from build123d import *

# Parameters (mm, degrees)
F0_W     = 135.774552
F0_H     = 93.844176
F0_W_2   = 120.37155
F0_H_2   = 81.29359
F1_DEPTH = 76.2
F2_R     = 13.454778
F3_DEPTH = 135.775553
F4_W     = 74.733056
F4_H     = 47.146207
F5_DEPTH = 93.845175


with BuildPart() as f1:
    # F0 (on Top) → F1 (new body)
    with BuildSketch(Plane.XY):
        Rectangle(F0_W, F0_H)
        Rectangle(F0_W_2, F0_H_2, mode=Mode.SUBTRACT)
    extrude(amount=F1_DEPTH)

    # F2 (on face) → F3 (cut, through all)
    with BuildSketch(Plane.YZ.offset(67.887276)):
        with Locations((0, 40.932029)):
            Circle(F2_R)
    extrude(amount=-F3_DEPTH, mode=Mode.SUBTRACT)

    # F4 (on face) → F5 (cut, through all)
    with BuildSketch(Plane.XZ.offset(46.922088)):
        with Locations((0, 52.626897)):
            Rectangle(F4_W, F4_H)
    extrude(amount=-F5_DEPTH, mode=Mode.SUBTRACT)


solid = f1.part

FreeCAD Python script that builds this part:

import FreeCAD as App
import Part
import Sketcher
from FreeCAD import Vector
Q = App.Units.Quantity

doc = App.newDocument("Part")
body = doc.addObject("PartDesign::Body", "Body")

# Sketch on XY plane
sketch1 = body.newObject("Sketcher::SketchObject", "Sketch")
sketch1.AttachmentSupport = (doc.getObject("XY_Plane"), [""])
sketch1.MapMode = "FlatFace"
sketch1.addGeometry([
    Part.LineSegment(Vector(-68, 47, 0), Vector(-68, -47, 0)),  # 0
    Part.LineSegment(Vector(-68, -47, 0), Vector(68, -47, 0)),  # 1
    Part.LineSegment(Vector(68, -47, 0), Vector(68, 47, 0)),  # 2
    Part.LineSegment(Vector(68, 47, 0), Vector(-68, 47, 0)),  # 3
    Part.LineSegment(Vector(60, -41, 0), Vector(-60, -41, 0)),  # 4
    Part.LineSegment(Vector(-60, -41, 0), Vector(-60, 41, 0)),  # 5
    Part.LineSegment(Vector(-60, 41, 0), Vector(60, 41, 0)),  # 6
    Part.LineSegment(Vector(60, 41, 0), Vector(60, -41, 0)),  # 7
], False)
sketch1.addConstraint([
    Sketcher.Constraint("Coincident", 0, 2, 1, 1),
    Sketcher.Constraint("Coincident", 1, 2, 2, 1),
    Sketcher.Constraint("Coincident", 2, 2, 3, 1),
    Sketcher.Constraint("Coincident", 3, 2, 0, 1),
    Sketcher.Constraint("Coincident", 4, 2, 5, 1),
    Sketcher.Constraint("Coincident", 5, 2, 6, 1),
    Sketcher.Constraint("Coincident", 6, 2, 7, 1),
    Sketcher.Constraint("Coincident", 7, 2, 4, 1),
    Sketcher.Constraint("Vertical", 0),
    Sketcher.Constraint("Horizontal", 1),
    Sketcher.Constraint("Vertical", 2),
    Sketcher.Constraint("Horizontal", 3),
    Sketcher.Constraint("Horizontal", 4),
    Sketcher.Constraint("Vertical", 5),
    Sketcher.Constraint("Horizontal", 6),
    Sketcher.Constraint("Vertical", 7),
    Sketcher.Constraint("Symmetric", 0, 2, 2, 2, -1, 1),
    Sketcher.Constraint("Symmetric", 4, 2, 6, 2, -1, 1),
    Sketcher.Constraint("DistanceX", 1, 1, 1, 2, 135.774552),
    Sketcher.Constraint("DistanceX", 4, 2, 4, 1, 120.37155),
    Sketcher.Constraint("DistanceY", 5, 1, 5, 2, 81.29359),
    Sketcher.Constraint("DistanceY", 0, 2, 0, 1, 93.844176),
])
pad1 = body.newObject("PartDesign::Pad", "Pad")
pad1.Profile = sketch1
pad1.Length = Q("3 in")

# Sketch on YZ plane
sketch2 = body.newObject("Sketcher::SketchObject", "Sketch001")
sketch2.AttachmentSupport = (doc.getObject("YZ_Plane"), [""])
sketch2.MapMode = "FlatFace"
sketch2.AttachmentOffset = App.Placement(Vector(0, 0, 67.887276), App.Rotation())
sketch2.addGeometry(Part.Circle(Vector(0, 41, 0), Vector(0, 0, 1), 13), False)
sketch2.addConstraint([
    Sketcher.Constraint("PointOnObject", 0, 3, -2),
    Sketcher.Constraint("Diameter", 0, 26.909556),
    Sketcher.Constraint("DistanceY", -1, 1, 0, 3, 40.932029),
])
pocket1 = body.newObject("PartDesign::Pocket", "Pocket")
pocket1.Profile = sketch2
pocket1.Type = "ThroughAll"

# Sketch on XZ plane
sketch3 = body.newObject("Sketcher::SketchObject", "Sketch002")
sketch3.AttachmentSupport = (doc.getObject("XZ_Plane"), [""])
sketch3.MapMode = "FlatFace"
sketch3.AttachmentOffset = App.Placement(Vector(0, 0, 46.922088), App.Rotation())
sketch3.addGeometry([
    Part.LineSegment(Vector(-37, 76, 0), Vector(-37, 29, 0)),
    Part.LineSegment(Vector(-37, 29, 0), Vector(37, 29, 0)),
    Part.LineSegment(Vector(37, 29, 0), Vector(37, 76, 0)),
    Part.LineSegment(Vector(37, 76, 0), Vector(-37, 76, 0)),
], False)
sketch3.addConstraint([
    Sketcher.Constraint("Coincident", 0, 2, 1, 1),
    Sketcher.Constraint("Coincident", 1, 2, 2, 1),
    Sketcher.Constraint("Coincident", 2, 2, 3, 1),
    Sketcher.Constraint("Coincident", 3, 2, 0, 1),
    Sketcher.Constraint("Vertical", 0),
    Sketcher.Constraint("Horizontal", 1),
    Sketcher.Constraint("Vertical", 2),
    Sketcher.Constraint("Horizontal", 3),
    Sketcher.Constraint("DistanceY", -1, 1, 2, 2, Q("3 in")),
    Sketcher.Constraint("DistanceX", 1, 1, 1, 2, 74.733056),
    Sketcher.Constraint("DistanceY", 0, 2, 0, 1, 47.146207),
    Sketcher.Constraint("DistanceX", 0, 2, -1, 1, 37.366528),
])
pocket2 = body.newObject("PartDesign::Pocket", "Pocket001")
pocket2.Profile = sketch3
pocket2.Type = "ThroughAll"

doc.recompute()
